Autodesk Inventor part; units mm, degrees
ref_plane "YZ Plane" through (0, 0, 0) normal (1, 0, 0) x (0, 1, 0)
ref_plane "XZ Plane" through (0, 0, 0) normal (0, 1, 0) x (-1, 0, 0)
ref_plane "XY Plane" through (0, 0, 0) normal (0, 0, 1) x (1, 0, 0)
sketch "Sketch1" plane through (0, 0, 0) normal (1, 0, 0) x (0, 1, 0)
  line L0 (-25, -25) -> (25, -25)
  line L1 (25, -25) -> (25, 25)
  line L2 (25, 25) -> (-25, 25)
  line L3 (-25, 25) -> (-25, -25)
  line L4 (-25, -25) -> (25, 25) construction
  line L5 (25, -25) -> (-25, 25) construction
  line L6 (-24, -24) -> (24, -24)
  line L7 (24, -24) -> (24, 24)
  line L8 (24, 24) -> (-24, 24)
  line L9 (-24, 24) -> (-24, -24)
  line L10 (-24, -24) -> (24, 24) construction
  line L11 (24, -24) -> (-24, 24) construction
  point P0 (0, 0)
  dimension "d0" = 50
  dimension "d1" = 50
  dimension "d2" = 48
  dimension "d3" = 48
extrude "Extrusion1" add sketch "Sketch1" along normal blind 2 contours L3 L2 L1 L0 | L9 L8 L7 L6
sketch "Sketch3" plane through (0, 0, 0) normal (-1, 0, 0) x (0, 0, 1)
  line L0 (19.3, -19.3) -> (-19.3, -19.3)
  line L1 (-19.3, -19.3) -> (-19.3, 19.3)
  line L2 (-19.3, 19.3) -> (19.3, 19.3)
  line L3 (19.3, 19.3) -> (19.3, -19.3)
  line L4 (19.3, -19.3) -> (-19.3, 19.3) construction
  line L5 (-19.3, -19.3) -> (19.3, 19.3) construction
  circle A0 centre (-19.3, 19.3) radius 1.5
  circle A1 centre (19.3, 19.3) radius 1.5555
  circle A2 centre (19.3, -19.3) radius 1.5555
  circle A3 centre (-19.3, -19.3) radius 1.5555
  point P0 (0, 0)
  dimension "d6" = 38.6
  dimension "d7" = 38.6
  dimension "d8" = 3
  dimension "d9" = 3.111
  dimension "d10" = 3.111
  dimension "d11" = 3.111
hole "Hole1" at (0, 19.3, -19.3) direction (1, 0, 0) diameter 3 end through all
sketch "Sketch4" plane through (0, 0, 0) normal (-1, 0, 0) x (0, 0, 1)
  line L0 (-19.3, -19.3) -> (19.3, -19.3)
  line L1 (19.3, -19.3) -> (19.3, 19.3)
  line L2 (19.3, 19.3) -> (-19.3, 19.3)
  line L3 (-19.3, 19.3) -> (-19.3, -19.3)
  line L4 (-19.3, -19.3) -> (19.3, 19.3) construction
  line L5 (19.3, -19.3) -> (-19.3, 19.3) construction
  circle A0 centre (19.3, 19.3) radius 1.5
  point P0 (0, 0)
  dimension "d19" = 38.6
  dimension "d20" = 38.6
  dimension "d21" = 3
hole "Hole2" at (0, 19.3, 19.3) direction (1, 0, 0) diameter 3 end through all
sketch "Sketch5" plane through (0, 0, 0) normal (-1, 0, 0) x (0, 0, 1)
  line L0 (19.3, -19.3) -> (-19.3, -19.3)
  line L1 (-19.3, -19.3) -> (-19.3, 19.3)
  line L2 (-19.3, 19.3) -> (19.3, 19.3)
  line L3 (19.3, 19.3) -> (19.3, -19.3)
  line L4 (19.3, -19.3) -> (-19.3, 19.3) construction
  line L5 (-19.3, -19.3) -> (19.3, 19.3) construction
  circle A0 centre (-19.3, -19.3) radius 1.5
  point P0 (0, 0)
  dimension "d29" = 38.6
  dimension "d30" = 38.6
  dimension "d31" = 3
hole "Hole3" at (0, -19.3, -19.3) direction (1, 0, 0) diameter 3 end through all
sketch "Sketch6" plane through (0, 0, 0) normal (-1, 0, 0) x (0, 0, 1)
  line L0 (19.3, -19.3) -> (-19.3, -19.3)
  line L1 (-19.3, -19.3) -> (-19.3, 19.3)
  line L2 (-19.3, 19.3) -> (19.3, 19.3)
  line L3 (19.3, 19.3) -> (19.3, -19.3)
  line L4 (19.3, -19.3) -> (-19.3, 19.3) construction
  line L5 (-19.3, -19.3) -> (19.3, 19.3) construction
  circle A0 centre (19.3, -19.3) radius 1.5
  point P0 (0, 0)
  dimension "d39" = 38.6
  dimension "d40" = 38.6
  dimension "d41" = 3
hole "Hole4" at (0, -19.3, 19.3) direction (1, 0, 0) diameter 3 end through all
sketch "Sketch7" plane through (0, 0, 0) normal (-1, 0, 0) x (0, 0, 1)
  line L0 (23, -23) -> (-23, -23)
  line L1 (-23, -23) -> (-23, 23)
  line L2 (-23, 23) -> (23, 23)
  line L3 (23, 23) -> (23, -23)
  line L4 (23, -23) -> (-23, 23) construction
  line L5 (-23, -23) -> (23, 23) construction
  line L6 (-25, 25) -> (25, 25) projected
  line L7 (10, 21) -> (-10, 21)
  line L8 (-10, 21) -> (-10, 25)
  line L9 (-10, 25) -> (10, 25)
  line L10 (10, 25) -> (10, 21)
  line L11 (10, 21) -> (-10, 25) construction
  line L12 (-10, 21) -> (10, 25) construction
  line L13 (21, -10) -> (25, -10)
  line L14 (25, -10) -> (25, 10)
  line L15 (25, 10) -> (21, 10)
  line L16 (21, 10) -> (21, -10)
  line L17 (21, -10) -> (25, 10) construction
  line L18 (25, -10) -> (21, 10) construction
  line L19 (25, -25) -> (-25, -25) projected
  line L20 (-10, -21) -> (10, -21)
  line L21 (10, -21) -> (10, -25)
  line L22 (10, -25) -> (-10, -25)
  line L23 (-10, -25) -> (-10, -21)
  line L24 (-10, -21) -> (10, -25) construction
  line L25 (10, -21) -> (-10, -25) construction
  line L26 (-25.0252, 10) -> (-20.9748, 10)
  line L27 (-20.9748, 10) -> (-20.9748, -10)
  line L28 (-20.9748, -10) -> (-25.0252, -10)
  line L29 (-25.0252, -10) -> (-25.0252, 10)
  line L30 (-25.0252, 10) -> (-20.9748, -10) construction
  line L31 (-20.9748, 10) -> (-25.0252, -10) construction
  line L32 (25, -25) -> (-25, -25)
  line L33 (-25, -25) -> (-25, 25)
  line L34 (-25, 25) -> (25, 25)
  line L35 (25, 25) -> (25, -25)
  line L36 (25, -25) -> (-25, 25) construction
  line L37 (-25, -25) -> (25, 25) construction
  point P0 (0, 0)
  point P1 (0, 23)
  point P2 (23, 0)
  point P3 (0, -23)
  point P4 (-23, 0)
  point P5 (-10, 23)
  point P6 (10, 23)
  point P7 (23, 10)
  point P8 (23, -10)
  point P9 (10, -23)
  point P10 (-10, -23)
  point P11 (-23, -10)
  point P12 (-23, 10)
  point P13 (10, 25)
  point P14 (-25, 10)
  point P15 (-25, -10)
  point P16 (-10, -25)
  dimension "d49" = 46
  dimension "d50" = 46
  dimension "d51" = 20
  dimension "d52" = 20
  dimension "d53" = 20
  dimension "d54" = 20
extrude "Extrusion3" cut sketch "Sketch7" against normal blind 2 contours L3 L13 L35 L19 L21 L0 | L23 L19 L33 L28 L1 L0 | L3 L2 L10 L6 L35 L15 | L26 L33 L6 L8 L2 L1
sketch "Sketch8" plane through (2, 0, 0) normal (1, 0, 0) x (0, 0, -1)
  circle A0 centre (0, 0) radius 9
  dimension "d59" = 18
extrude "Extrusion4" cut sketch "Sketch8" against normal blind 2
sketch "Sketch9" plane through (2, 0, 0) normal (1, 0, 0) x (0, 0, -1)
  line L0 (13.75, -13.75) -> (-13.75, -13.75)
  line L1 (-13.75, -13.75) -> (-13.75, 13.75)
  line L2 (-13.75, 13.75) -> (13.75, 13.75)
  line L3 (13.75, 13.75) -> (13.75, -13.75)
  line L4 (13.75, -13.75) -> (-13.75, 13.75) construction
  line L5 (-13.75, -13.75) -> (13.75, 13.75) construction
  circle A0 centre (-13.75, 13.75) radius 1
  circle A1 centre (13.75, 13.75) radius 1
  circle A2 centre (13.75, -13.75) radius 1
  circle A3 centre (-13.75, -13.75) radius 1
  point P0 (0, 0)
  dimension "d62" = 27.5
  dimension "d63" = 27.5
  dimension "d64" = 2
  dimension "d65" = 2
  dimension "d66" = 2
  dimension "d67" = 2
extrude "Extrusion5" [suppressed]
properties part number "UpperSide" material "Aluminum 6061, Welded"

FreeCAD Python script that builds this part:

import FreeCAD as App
import Part
import Sketcher
Q = App.Units.Quantity

doc = App.newDocument("Part")
body = doc.addObject("PartDesign::Body", "Body")

sketch1 = body.newObject("Sketcher::SketchObject", "Sketch")
sketch1.AttachmentSupport = (doc.getObject("YZ_Plane"), [""])
sketch1.MapMode = "FlatFace"
sketch1.addGeometry([
    Part.LineSegment(App.Vector(-25, 25, 0), App.Vector(-25, -25, 0)),
    Part.LineSegment(App.Vector(-25, -25, 0), App.Vector(25, -25, 0)),
    Part.LineSegment(App.Vector(25, -25, 0), App.Vector(25, 25, 0)),
    Part.LineSegment(App.Vector(25, 25, 0), App.Vector(-25, 25, 0)),
], False)
sketch1.addConstraint([
    Sketcher.Constraint("Coincident", 0, 2, 1, 1),
    Sketcher.Constraint("Coincident", 1, 2, 2, 1),
    Sketcher.Constraint("Coincident", 2, 2, 3, 1),
    Sketcher.Constraint("Coincident", 3, 2, 0, 1),
    Sketcher.Constraint("Vertical", 0),
    Sketcher.Constraint("Horizontal", 1),
    Sketcher.Constraint("Vertical", 2),
    Sketcher.Constraint("Horizontal", 3),
    Sketcher.Constraint("Symmetric", 0, 2, 2, 2, -1, 1),
    Sketcher.Constraint("Equal", 3, 0),
    Sketcher.Constraint("DistanceX", 1, 1, 1, 2, Q("50 mm")),
])
pad1 = body.newObject("PartDesign::Pad", "Pad")
pad1.Profile = sketch1
pad1.Length = 2

sketch2 = body.newObject("Sketcher::SketchObject", "Sketch001")
sketch2.AttachmentSupport = (doc.getObject("YZ_Plane"), [""])
sketch2.MapMode = "FlatFace"
sketch2.addGeometry(Part.Circle(App.Vector(19.3, -19.3, 0), App.Vector(0, 0, 1), 1.5), False)
sketch2.addConstraint([
    Sketcher.Constraint("Diameter", 0, Q("3 mm")),
    Sketcher.Constraint("DistanceX", -1, 1, 0, 3, Q("19.3 mm")),
    Sketcher.Constraint("DistanceY", 0, 3, -1, 1, Q("19.3 mm")),
])
doc.recompute()
hole = body.newObject("PartDesign::Hole", "Hole")
hole.Profile = sketch2
hole.ThreadType = "None"
hole.Diameter = 3
hole.DepthType = "ThroughAll"
hole.Reversed = True

sketch3 = body.newObject("Sketcher::SketchObject", "Sketch002")
sketch3.AttachmentSupport = (doc.getObject("YZ_Plane"), [""])
sketch3.MapMode = "FlatFace"
sketch3.addGeometry(Part.Circle(App.Vector(19.3, 19.3, 0), App.Vector(0, 0, 1), 1.5), False)
sketch3.addConstraint([
    Sketcher.Constraint("Diameter", 0, Q("3 mm")),
    Sketcher.Constraint("DistanceX", -1, 1, 0, 3, Q("19.3 mm")),
    Sketcher.Constraint("DistanceY", -1, 1, 0, 3, Q("19.3 mm")),
])
doc.recompute()
hole2 = body.newObject("PartDesign::Hole", "Hole001")
hole2.Profile = sketch3
hole2.ThreadType = "None"
hole2.Diameter = 3
hole2.DepthType = "ThroughAll"
hole2.Reversed = True

sketch4 = body.newObject("Sketcher::SketchObject", "Sketch003")
sketch4.AttachmentSupport = (doc.getObject("YZ_Plane"), [""])
sketch4.MapMode = "FlatFace"
sketch4.addGeometry(Part.Circle(App.Vector(-19.3, -19.3, 0), App.Vector(0, 0, 1), 1.5), False)
sketch4.addConstraint([
    Sketcher.Constraint("Diameter", 0, Q("3 mm")),
    Sketcher.Constraint("DistanceX", 0, 3, -1, 1, Q("19.3 mm")),
    Sketcher.Constraint("DistanceY", 0, 3, -1, 1, Q("19.3 mm")),
])
doc.recompute()
hole3 = body.newObject("PartDesign::Hole", "Hole002")
hole3.Profile = sketch4
hole3.ThreadType = "None"
hole3.Diameter = 3
hole3.DepthType = "ThroughAll"
hole3.Reversed = True

sketch5 = body.newObject("Sketcher::SketchObject", "Sketch004")
sketch5.AttachmentSupport = (doc.getObject("YZ_Plane"), [""])
sketch5.MapMode = "FlatFace"
sketch5.addGeometry(Part.Circle(App.Vector(-19.3, 19.3, 0), App.Vector(0, 0, 1), 1.5), False)
sketch5.addConstraint([
    Sketcher.Constraint("Diameter", 0, Q("3 mm")),
    Sketcher.Constraint("DistanceX", 0, 3, -1, 1, Q("19.3 mm")),
    Sketcher.Constraint("DistanceY", -1, 1, 0, 3, Q("19.3 mm")),
])
doc.recompute()
hole4 = body.newObject("PartDesign::Hole", "Hole003")
hole4.Profile = sketch5
hole4.ThreadType = "None"
hole4.Diameter = 3
hole4.DepthType = "ThroughAll"
hole4.Reversed = True

sketch6 = body.newObject("Sketcher::SketchObject", "Sketch005")
sketch6.AttachmentSupport = (doc.getObject("YZ_Plane"), [""])
sketch6.MapMode = "FlatFace"
sketch6.addGeometry([
    Part.LineSegment(App.Vector(-10, 23, 0), App.Vector(-23, 23, 0)),
    Part.LineSegment(App.Vector(-23, 23, 0), App.Vector(-23, 10, 0)),
    Part.LineSegment(App.Vector(-23, 10, 0), App.Vector(-25, 10, 0)),
    Part.LineSegment(App.Vector(-25, 10, 0), App.Vector(-25, 25, 0)),
    Part.LineSegment(App.Vector(-25, 25, 0), App.Vector(-10, 25, 0)),
    Part.LineSegment(App.Vector(-10, 25, 0), App.Vector(-10, 23, 0)),
    Part.LineSegment(App.Vector(-25, -10, 0), App.Vector(-23, -10, 0)),
    Part.LineSegment(App.Vector(-23, -10, 0), App.Vector(-23, -23, 0)),
    Part.LineSegment(App.Vector(-23, -23, 0), App.Vector(-10, -23, 0)),
    Part.LineSegment(App.Vector(-10, -23, 0), App.Vector(-10, -25, 0)),
    Part.LineSegment(App.Vector(-10, -25, 0), App.Vector(-25, -25, 0)),
    Part.LineSegment(App.Vector(-25, -25, 0), App.Vector(-25, -10, 0)),
    Part.LineSegment(App.Vector(23, 23, 0), App.Vector(10, 23, 0)),
    Part.LineSegment(App.Vector(10, 23, 0), App.Vector(10, 25, 0)),
    Part.LineSegment(App.Vector(10, 25, 0), App.Vector(25, 25, 0)),
    Part.LineSegment(App.Vector(25, 25, 0), App.Vector(25, 10, 0)),
    Part.LineSegment(App.Vector(25, 10, 0), App.Vector(23, 10, 0)),
    Part.LineSegment(App.Vector(23, 10, 0), App.Vector(23, 23, 0)),
    Part.LineSegment(App.Vector(10, -25, 0), App.Vector(10, -23, 0)),
    Part.LineSegment(App.Vector(10, -23, 0), App.Vector(23, -23, 0)),
    Part.LineSegment(App.Vector(23, -23, 0), App.Vector(23, -10, 0)),
    Part.LineSegment(App.Vector(23, -10, 0), App.Vector(25, -10, 0)),
    Part.LineSegment(App.Vector(25, -10, 0), App.Vector(25, -25, 0)),
    Part.LineSegment(App.Vector(25, -25, 0), App.Vector(10, -25, 0)),
], False)
sketch6.addConstraint([
    Sketcher.Constraint("Coincident", 0, 2, 1, 1),
    Sketcher.Constraint("Coincident", 1, 2, 2, 1),
    Sketcher.Constraint("Coincident", 2, 2, 3, 1),
    Sketcher.Constraint("Coincident", 3, 2, 4, 1),
    Sketcher.Constraint("Coincident", 4, 2, 5, 1),
    Sketcher.Constraint("Coincident", 5, 2, 0, 1),
    Sketcher.Constraint("Coincident", 6, 2, 7, 1),
    Sketcher.Constraint("Coincident", 7, 2, 8, 1),
    Sketcher.Constraint("Coincident", 8, 2, 9, 1),
    Sketcher.Constraint("Coincident", 9, 2, 10, 1),
    Sketcher.Constraint("Coincident", 10, 2, 11, 1),
    Sketcher.Constraint("Coincident", 11, 2, 6, 1),
    Sketcher.Constraint("Coincident", 12, 2, 13, 1),
    Sketcher.Constraint("Coincident", 13, 2, 14, 1),
    Sketcher.Constraint("Coincident", 14, 2, 15, 1),
    Sketcher.Constraint("Coincident", 15, 2, 16, 1),
    Sketcher.Constraint("Coincident", 16, 2, 17, 1),
    Sketcher.Constraint("Coincident", 17, 2, 12, 1),
    Sketcher.Constraint("Coincident", 18, 2, 19, 1),
    Sketcher.Constraint("Coincident", 19, 2, 20, 1),
    Sketcher.Constraint("Coincident", 20, 2, 21, 1),
    Sketcher.Constraint("Coincident", 21, 2, 22, 1),
    Sketcher.Constraint("Coincident", 22, 2, 23, 1),
    Sketcher.Constraint("Coincident", 23, 2, 18, 1),
    Sketcher.Constraint("Horizontal", 0),
    Sketcher.Constraint("Vertical", 1),
    Sketcher.Constraint("Horizontal", 2),
    Sketcher.Constraint("Vertical", 3),
    Sketcher.Constraint("Horizontal", 4),
    Sketcher.Constraint("Vertical", 5),
    Sketcher.Constraint("Horizontal", 6),
    Sketcher.Constraint("Vertical", 7),
    Sketcher.Constraint("Horizontal", 8),
    Sketcher.Constraint("Vertical", 9),
    Sketcher.Constraint("Horizontal", 10),
    Sketcher.Constraint("Vertical", 11),
    Sketcher.Constraint("Horizontal", 12),
    Sketcher.Constraint("Vertical", 13),
    Sketcher.Constraint("Horizontal", 14),
    Sketcher.Constraint("Vertical", 15),
    Sketcher.Constraint("Horizontal", 16),
    Sketcher.Constraint("Vertical", 17),
    Sketcher.Constraint("Vertical", 18),
    Sketcher.Constraint("Horizontal", 19),
    Sketcher.Constraint("Vertical", 20),
    Sketcher.Constraint("Horizontal", 21),
    Sketcher.Constraint("Vertical", 22),
    Sketcher.Constraint("Horizontal", 23),
    Sketcher.Constraint("Symmetric", 8, 2, 12, 2, -1, 1),
    Sketcher.Constraint("Symmetric", 10, 2, 14, 2, -1, 1),
    Sketcher.Constraint("Symmetric", 6, 2, 16, 2, -1, 1),
    Sketcher.Constraint("Symmetric", 5, 2, 18, 2, -1, 1),
    Sketcher.Constraint("Symmetric", 1, 2, 20, 2, -1, 1),
    Sketcher.Constraint("Symmetric", 3, 2, 22, 2, -1, 1),
    Sketcher.Constraint("Symmetric", 5, 2, 12, 2, -2),
    Sketcher.Constraint("Symmetric", 3, 2, 14, 2, -2),
    Sketcher.Constraint("Symmetric", 1, 2, 16, 2, -2),
    Sketcher.Constraint("Equal", 19, 1),
    Sketcher.Constraint("Equal", 23, 3),
    Sketcher.Constraint("DistanceY", 6, 2, 1, 2, Q("20 mm")),
    Sketcher.Constraint("DistanceY", 7, 2, 0, 2, Q("46 mm")),
    Sketcher.Constraint("DistanceX", 5, 2, 12, 2, Q("20 mm")),
    Sketcher.Constraint("DistanceX", 2, 2, 2, 1, Q("2 mm")),
])
pocket1 = body.newObject("PartDesign::Pocket", "Pocket")
pocket1.Profile = sketch6
pocket1.Length = 2
pocket1.Reversed = True

sketch7 = body.newObject("Sketcher::SketchObject", "Sketch006")
sketch7.AttachmentSupport = (doc.getObject("YZ_Plane"), [""])
sketch7.MapMode = "FlatFace"
sketch7.AttachmentOffset = App.Placement(App.Vector(0, 0, 2), App.Rotation())
sketch7.addGeometry(Part.Circle(App.Vector(0, 0, 0), App.Vector(0, 0, 1), 9), False)
sketch7.addConstraint([
    Sketcher.Constraint("Coincident", 0, 3, -1, 1),
    Sketcher.Constraint("Diameter", 0, Q("18 mm")),
])
pocket2 = body.newObject("PartDesign::Pocket", "Pocket001")
pocket2.Profile = sketch7
pocket2.Length = 2

doc.recompute()
